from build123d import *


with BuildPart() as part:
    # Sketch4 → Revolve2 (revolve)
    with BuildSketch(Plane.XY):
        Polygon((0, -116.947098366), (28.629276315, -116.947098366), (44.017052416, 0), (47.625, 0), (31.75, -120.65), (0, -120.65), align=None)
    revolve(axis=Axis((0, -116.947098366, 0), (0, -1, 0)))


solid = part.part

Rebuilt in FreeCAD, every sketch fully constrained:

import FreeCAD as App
import Part
import Sketcher
Q = App.Units.Quantity

doc = App.newDocument("Part")
body = doc.addObject("PartDesign::Body", "Body")

# Sketch on XY plane
sketch1 = body.newObject("Sketcher::SketchObject", "Sketch")
sketch1.AttachmentSupport = (doc.getObject("XY_Plane"), [""])
sketch1.MapMode = "FlatFace"
sketch1.addGeometry([
    Part.LineSegment(App.Vector(28.6, -116.9, 0), App.Vector(0, -116.9, 0)),  # 0
    Part.LineSegment(App.Vector(0, -116.9, 0), App.Vector(0, -120.7, 0)),  # 1
    Part.LineSegment(App.Vector(0, -120.7, 0), App.Vector(31.8, -120.7, 0)),  # 2
    Part.LineSegment(App.Vector(31.8, -120.7, 0), App.Vector(47.6, 0, 0)),  # 3
    Part.LineSegment(App.Vector(47.6, 0, 0), App.Vector(44, 0, 0)),  # 4
    Part.LineSegment(App.Vector(44, 0, 0), App.Vector(28.6, -116.9, 0)),  # 5
], False)
sketch1.addConstraint([
    Sketcher.Constraint("Coincident", 0, 2, 1, 1),
    Sketcher.Constraint("Coincident", 1, 2, 2, 1),
    Sketcher.Constraint("Coincident", 2, 2, 3, 1),
    Sketcher.Constraint("Coincident", 3, 2, 4, 1),
    Sketcher.Constraint("Coincident", 4, 2, 5, 1),
    Sketcher.Constraint("Coincident", 5, 2, 0, 1),
    Sketcher.Constraint("Horizontal", 0),
    Sketcher.Constraint("Vertical", 1),
    Sketcher.Constraint("Horizontal", 2),
    Sketcher.Constraint("Horizontal", 4),
    Sketcher.Constraint("PointOnObject", 0, 2, -2),
    Sketcher.Constraint("PointOnObject", 3, 2, -1),
    Sketcher.Constraint("Parallel", 3, 5),
    Sketcher.Constraint("DistanceX", 2, 1, 2, 2, Q("1.25 in")),
    Sketcher.Constraint("DistanceY", 1, 2, -1, 1, Q("4.75 in")),
    Sketcher.Constraint("DistanceX", -1, 1, 3, 2, Q("1.875 in")),
    Sketcher.Constraint("DistanceY", 1, 2, 1, 1, Q("3.702902 mm")),
    Sketcher.Constraint("DistanceX", 0, 2, 0, 1, Q("28.629276 mm")),
])
revolution = body.newObject("PartDesign::Revolution", "Revolution")
revolution.Profile = sketch1
revolution.ReferenceAxis = (sketch1, ["V_Axis"])
revolution.Angle = 360

doc.recompute()
